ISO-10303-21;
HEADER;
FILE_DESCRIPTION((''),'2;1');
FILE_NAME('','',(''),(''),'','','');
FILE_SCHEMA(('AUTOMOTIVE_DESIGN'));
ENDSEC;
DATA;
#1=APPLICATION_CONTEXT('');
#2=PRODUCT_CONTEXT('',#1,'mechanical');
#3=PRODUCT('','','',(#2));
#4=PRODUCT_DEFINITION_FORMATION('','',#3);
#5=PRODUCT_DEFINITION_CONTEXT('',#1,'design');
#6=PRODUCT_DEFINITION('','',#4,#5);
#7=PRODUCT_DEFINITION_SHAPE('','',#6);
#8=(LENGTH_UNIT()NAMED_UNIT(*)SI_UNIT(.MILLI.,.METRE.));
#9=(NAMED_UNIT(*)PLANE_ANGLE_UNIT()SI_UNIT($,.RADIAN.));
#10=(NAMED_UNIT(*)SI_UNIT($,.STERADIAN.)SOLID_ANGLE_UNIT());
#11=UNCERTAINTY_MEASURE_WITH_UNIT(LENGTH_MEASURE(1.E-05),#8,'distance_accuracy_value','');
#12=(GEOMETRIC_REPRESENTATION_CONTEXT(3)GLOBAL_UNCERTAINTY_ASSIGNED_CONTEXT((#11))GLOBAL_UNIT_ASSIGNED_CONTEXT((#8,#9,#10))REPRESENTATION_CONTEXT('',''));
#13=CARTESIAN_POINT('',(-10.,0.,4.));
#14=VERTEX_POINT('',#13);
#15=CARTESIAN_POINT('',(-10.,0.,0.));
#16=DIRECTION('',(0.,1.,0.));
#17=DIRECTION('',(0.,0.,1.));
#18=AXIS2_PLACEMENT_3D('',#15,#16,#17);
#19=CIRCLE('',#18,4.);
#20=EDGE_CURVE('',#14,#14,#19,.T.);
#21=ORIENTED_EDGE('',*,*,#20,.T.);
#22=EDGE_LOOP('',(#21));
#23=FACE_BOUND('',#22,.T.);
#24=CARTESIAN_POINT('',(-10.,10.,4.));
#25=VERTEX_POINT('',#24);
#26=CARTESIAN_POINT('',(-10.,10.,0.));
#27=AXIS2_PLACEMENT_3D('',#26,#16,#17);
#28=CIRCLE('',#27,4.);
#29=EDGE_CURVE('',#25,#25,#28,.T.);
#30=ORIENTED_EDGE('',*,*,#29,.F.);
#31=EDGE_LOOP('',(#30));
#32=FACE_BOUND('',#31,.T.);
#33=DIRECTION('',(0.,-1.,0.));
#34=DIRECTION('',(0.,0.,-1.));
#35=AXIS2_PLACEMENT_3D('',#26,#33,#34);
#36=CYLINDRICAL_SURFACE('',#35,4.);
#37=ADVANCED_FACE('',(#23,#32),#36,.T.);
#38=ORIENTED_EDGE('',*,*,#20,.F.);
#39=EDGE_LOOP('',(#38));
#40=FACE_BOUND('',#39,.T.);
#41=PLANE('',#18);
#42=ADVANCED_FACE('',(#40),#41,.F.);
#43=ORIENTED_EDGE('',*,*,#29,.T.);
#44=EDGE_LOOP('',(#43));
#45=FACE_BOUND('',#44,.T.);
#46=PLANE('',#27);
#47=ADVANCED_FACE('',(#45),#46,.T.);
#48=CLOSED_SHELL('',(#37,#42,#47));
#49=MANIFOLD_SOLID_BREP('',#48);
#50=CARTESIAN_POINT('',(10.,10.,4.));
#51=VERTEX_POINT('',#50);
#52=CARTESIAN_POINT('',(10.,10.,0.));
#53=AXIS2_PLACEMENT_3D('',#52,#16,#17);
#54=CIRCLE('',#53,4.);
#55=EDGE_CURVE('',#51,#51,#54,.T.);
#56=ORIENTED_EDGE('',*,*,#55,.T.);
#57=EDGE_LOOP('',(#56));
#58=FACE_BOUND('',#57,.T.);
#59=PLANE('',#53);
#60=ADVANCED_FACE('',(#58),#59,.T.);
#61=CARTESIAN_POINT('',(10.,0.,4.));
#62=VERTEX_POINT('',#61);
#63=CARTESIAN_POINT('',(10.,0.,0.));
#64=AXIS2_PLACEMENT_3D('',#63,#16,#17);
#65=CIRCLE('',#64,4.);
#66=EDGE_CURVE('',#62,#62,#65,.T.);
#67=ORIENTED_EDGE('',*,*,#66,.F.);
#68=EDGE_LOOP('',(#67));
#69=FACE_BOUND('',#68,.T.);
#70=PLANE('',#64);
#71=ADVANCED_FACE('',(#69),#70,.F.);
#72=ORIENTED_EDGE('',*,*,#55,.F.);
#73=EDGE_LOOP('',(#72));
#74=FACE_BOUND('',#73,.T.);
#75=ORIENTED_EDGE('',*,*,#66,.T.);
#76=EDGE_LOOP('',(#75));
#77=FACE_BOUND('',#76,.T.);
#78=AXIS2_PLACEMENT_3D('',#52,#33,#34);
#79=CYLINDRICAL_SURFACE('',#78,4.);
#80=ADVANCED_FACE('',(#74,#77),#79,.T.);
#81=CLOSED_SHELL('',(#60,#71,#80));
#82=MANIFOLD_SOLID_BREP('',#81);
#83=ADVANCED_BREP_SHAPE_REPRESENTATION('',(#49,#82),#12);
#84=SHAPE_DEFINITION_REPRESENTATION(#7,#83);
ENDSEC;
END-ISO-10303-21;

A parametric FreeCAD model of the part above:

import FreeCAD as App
import Part
import Sketcher

V = App.Vector

doc = App.newDocument("Part")
body = doc.addObject("PartDesign::Body", "Body")

# Sketch on XZ plane
sketch1 = doc.addObject("Sketcher::SketchObject", "Sketch")
body.addObject(sketch1)
sketch1.AttachmentSupport = (doc.XZ_Plane, [""])
sketch1.MapMode = "FlatFace"
sketch1.addGeometry(Part.Circle(V(10, 0, 0), V(0, 0, 1), 4), False)
sketch1.addConstraint([
    Sketcher.Constraint("PointOnObject", 0, 3, -1),
    Sketcher.Constraint("Diameter", 0, 8.0),
    Sketcher.Constraint("DistanceX", -1, 1, 0, 3, 10.0),
])
pad1 = doc.addObject("PartDesign::Pad", "Pad")
body.addObject(pad1)
pad1.Profile = sketch1
pad1.Length = 10
pad1.Reversed = True
body2 = doc.addObject("PartDesign::Body", "Body001")

# Sketch on XZ plane
sketch2 = doc.addObject("Sketcher::SketchObject", "Sketch001")
body2.addObject(sketch2)
sketch2.AttachmentSupport = (doc.getObject("XZ_Plane001"), [""])
sketch2.MapMode = "FlatFace"
sketch2.addGeometry(Part.Circle(V(-10, 0, 0), V(0, 0, 1), 4), False)
sketch2.addConstraint([
    Sketcher.Constraint("PointOnObject", 0, 3, -1),
    Sketcher.Constraint("Diameter", 0, 8.0),
    Sketcher.Constraint("DistanceX", 0, 3, -1, 1, 10.0),
])
pad2 = doc.addObject("PartDesign::Pad", "Pad001")
body2.addObject(pad2)
pad2.Profile = sketch2
pad2.Length = 10
pad2.Reversed = True

doc.recompute()
